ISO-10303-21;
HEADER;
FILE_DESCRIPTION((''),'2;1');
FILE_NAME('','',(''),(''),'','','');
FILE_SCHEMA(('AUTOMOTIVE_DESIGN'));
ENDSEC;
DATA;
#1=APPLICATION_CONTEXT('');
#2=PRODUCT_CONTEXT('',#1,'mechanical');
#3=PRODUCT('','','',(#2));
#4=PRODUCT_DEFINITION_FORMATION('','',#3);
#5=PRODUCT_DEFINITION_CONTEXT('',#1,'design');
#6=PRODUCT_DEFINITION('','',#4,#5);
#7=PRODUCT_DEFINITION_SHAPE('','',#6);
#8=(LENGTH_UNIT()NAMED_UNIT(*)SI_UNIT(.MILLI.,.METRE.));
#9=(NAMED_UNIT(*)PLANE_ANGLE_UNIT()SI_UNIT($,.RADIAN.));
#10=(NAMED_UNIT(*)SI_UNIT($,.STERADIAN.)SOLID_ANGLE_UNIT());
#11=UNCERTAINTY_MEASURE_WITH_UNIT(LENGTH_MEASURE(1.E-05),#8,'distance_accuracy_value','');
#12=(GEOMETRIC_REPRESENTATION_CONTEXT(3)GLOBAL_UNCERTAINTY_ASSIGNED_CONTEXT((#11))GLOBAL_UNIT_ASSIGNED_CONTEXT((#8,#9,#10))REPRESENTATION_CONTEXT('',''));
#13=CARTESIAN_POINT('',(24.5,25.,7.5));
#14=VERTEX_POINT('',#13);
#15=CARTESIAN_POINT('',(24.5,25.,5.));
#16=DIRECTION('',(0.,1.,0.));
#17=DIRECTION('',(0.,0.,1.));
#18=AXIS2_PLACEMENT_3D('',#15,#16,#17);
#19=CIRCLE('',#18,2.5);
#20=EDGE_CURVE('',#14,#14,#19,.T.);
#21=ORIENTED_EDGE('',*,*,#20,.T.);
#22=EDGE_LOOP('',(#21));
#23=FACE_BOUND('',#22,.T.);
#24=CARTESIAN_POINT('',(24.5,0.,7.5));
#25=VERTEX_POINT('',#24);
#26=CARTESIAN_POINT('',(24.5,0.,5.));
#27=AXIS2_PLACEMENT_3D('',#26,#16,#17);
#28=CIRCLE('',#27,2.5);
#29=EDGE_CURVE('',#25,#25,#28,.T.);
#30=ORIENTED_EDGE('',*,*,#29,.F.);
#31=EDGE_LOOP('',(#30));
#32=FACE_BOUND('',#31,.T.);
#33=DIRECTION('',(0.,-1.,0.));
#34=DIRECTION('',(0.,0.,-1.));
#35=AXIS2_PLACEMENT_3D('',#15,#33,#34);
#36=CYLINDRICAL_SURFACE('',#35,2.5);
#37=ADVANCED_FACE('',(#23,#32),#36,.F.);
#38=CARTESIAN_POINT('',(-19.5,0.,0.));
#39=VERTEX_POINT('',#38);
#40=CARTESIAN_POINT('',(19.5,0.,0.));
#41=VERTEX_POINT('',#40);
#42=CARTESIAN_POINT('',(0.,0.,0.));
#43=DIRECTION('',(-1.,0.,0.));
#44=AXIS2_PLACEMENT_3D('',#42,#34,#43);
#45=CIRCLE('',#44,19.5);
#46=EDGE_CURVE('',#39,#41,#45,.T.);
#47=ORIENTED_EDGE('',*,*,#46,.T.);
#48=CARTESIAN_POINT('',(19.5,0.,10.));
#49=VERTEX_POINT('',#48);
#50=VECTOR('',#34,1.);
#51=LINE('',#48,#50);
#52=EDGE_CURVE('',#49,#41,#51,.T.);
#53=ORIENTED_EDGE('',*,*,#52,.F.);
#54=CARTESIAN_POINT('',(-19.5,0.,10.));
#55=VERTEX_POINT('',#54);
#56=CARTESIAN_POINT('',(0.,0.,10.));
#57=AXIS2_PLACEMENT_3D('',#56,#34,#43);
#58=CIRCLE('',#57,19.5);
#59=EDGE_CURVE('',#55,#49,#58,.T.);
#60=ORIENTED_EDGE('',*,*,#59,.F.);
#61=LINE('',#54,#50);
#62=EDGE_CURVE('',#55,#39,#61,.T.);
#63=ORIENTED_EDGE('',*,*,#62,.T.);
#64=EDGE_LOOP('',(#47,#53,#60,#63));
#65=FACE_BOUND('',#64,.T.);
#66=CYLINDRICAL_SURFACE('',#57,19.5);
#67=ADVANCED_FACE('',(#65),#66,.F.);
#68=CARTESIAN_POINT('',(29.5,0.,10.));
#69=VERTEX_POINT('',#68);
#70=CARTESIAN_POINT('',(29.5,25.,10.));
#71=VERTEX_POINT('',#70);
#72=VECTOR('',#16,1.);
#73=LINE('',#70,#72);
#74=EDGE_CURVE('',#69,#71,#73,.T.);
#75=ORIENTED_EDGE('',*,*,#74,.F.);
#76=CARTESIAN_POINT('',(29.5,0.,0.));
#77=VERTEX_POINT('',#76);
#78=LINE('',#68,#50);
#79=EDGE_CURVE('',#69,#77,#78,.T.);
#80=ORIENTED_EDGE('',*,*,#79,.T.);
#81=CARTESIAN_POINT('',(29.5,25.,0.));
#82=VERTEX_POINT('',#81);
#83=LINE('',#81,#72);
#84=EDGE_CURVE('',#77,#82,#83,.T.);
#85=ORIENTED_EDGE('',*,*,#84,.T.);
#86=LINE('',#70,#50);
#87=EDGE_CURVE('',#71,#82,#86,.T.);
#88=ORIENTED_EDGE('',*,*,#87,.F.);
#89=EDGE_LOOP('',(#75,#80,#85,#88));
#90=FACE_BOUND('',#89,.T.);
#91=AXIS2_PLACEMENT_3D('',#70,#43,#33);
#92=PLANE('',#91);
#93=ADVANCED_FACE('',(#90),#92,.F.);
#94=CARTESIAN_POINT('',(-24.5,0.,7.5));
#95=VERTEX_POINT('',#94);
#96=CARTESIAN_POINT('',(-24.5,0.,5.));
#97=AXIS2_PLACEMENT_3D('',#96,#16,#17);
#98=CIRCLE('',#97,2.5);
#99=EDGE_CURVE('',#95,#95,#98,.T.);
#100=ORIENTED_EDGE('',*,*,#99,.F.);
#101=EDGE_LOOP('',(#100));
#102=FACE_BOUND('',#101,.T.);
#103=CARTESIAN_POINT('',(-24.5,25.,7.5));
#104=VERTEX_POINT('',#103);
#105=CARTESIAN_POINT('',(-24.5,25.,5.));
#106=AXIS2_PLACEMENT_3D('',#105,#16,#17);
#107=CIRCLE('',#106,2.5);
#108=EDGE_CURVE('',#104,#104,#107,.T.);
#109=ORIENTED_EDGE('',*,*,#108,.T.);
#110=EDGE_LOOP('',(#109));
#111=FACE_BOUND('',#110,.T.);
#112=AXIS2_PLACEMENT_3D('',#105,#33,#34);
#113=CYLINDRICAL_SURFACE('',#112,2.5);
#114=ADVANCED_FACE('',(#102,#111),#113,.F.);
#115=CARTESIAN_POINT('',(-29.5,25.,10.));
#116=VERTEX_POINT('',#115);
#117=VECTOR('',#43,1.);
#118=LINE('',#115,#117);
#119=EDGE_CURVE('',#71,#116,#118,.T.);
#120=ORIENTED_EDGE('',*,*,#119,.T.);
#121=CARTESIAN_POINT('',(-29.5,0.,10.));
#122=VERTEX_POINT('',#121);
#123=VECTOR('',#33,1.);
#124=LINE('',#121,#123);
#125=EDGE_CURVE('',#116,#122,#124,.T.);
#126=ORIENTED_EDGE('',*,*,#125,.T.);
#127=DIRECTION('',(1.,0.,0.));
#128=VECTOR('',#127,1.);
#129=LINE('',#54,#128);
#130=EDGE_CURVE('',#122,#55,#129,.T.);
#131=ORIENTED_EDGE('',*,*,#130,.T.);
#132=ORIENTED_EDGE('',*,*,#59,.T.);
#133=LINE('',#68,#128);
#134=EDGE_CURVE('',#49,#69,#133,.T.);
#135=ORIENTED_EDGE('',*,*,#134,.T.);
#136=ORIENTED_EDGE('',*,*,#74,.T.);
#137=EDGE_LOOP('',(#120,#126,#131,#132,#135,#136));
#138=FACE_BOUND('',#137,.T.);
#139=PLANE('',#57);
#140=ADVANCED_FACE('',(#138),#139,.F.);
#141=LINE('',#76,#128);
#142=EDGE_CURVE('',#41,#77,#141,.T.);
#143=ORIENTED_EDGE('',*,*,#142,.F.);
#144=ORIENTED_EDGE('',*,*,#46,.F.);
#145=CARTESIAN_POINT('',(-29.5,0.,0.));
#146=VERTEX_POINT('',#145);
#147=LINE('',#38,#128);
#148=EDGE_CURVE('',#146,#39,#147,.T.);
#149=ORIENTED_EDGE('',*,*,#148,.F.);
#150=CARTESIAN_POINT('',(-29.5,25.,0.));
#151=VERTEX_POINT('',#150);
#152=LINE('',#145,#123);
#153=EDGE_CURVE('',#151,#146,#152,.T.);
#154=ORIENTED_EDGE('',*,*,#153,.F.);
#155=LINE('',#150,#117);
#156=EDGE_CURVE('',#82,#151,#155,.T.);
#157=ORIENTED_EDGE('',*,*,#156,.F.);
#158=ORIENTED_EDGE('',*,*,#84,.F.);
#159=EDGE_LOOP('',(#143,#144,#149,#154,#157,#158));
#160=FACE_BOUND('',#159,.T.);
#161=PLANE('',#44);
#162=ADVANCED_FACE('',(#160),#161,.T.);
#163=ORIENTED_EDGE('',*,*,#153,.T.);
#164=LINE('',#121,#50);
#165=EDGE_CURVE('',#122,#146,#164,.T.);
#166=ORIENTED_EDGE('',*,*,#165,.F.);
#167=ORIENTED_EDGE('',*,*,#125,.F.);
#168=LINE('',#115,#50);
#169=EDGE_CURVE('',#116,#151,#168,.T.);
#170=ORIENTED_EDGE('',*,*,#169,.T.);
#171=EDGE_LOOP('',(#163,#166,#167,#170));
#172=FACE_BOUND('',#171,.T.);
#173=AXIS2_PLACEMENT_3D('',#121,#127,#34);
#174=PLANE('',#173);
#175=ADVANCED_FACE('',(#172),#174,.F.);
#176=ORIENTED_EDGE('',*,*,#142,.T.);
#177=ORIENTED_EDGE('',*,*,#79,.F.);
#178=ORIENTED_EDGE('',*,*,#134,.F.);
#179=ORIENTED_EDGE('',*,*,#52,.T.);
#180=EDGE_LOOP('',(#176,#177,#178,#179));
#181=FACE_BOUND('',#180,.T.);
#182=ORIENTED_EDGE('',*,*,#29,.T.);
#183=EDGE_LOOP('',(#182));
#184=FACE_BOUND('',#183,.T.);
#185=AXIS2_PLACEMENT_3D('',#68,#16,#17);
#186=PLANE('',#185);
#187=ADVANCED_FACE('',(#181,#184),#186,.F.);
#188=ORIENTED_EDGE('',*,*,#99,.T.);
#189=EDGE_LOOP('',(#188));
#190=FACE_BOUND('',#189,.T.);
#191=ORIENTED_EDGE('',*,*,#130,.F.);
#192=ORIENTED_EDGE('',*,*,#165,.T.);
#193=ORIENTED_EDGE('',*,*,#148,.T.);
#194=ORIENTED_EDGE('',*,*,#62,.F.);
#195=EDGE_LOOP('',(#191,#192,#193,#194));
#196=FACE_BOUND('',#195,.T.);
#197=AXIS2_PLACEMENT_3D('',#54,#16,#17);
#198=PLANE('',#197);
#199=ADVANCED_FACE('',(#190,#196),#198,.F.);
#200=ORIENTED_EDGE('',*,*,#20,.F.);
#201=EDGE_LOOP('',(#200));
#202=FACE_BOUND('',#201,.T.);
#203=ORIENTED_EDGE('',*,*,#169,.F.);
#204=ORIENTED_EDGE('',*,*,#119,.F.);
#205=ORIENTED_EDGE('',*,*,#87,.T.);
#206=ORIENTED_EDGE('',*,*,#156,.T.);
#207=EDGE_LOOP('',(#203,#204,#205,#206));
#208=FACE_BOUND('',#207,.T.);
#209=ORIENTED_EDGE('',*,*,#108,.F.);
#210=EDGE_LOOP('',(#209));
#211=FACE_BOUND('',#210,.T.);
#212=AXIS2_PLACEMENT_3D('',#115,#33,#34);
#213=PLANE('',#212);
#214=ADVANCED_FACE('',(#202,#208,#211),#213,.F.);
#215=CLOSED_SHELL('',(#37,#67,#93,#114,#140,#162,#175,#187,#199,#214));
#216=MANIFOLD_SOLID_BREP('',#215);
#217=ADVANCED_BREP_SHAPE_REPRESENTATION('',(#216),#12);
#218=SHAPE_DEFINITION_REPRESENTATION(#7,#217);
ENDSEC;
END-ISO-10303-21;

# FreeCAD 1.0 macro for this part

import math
import FreeCAD as App
import Part
import Sketcher

V = App.Vector

doc = App.newDocument("Part")
body = doc.addObject("PartDesign::Body", "Body")

# Sketch on XY plane
sketch1 = body.newObject("Sketcher::SketchObject", "Sketch")
sketch1.AttachmentSupport = (doc.getObject("XY_Plane"), [""])
sketch1.MapMode = "FlatFace"
sketch1.addGeometry(Part.LineSegment(V(-29.5, 0, 0), V(-19.5, 0, 0)), False)
sketch1.addGeometry(Part.ArcOfCircle(Part.Circle(V(0, 0, 0), V(0, 0, 1), 19.5), math.radians(0), math.radians(180)), False)
sketch1.addGeometry(Part.LineSegment(V(19.5, 0, 0), V(29.5, 0, 0)), False)
sketch1.addGeometry(Part.LineSegment(V(29.5, 0, 0), V(29.5, 25, 0)), False)
sketch1.addGeometry(Part.LineSegment(V(29.5, 25, 0), V(-29.5, 25, 0)), False)
sketch1.addGeometry(Part.LineSegment(V(-29.5, 25, 0), V(-29.5, 0, 0)), False)
sketch1.addConstraint(Sketcher.Constraint("Coincident", 0, 2, 1, 2))
sketch1.addConstraint(Sketcher.Constraint("Coincident", 1, 1, 2, 1))
sketch1.addConstraint(Sketcher.Constraint("Coincident", 2, 2, 3, 1))
sketch1.addConstraint(Sketcher.Constraint("Coincident", 3, 2, 4, 1))
sketch1.addConstraint(Sketcher.Constraint("Coincident", 4, 2, 5, 1))
sketch1.addConstraint(Sketcher.Constraint("Coincident", 5, 2, 0, 1))
sketch1.addConstraint(Sketcher.Constraint("Horizontal", 0))
sketch1.addConstraint(Sketcher.Constraint("Horizontal", 2))
sketch1.addConstraint(Sketcher.Constraint("Vertical", 3))
sketch1.addConstraint(Sketcher.Constraint("Horizontal", 4))
sketch1.addConstraint(Sketcher.Constraint("Vertical", 5))
sketch1.addConstraint(Sketcher.Constraint("Coincident", 1, 3, -1, 1))
sketch1.addConstraint(Sketcher.Constraint("Symmetric", 2, 2, 5, 2, -1, 1))
sketch1.addConstraint(Sketcher.Constraint("PointOnObject", 0, 2, -1))
sketch1.addConstraint(Sketcher.Constraint("Radius", 1, 19.5))
sketch1.addConstraint(Sketcher.Constraint("DistanceX", 0, 1, 0, 2, 10.0))
sketch1.addConstraint(Sketcher.Constraint("DistanceY", 3, 1, 3, 2, 25.0))
pad1 = body.newObject("PartDesign::Pad", "Pad")
pad1.Profile = sketch1
pad1.Length = 10

# Sketch on XZ plane
sketch2 = body.newObject("Sketcher::SketchObject", "Sketch001")
sketch2.AttachmentSupport = (doc.getObject("XZ_Plane"), [""])
sketch2.MapMode = "FlatFace"
sketch2.addGeometry(Part.Circle(V(-24.5, 5, 0), V(0, 0, 1), 2.5), False)
sketch2.addGeometry(Part.Circle(V(24.5, 5, 0), V(0, 0, 1), 2.5), False)
sketch2.addConstraint(Sketcher.Constraint("Equal", 0, 1))
sketch2.addConstraint(Sketcher.Constraint("Symmetric", 0, 3, 1, 3, -2))
sketch2.addConstraint(Sketcher.Constraint("Diameter", 0, 5.0))
sketch2.addConstraint(Sketcher.Constraint("DistanceY", -1, 1, 0, 3, 5.0))
sketch2.addConstraint(Sketcher.Constraint("DistanceX", 0, 3, 1, 3, 49.0))
pocket1 = body.newObject("PartDesign::Pocket", "Pocket")
pocket1.Profile = sketch2
pocket1.Type = "ThroughAll"

doc.recompute()
